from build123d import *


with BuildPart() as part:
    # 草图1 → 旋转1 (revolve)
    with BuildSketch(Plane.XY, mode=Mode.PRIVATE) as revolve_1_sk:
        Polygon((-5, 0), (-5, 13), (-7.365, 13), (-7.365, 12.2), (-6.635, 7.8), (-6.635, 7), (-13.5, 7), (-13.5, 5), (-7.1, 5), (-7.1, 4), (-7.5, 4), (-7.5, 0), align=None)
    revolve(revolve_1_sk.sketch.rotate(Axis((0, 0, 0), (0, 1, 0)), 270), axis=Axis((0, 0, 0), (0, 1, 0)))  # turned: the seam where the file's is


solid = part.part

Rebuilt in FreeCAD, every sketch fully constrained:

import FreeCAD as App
import Part
import Sketcher
from FreeCAD import Vector

doc = App.newDocument("Part")
body = doc.addObject("PartDesign::Body", "Body")

# Sketch on XY plane
sketch1 = body.newObject("Sketcher::SketchObject", "Sketch")
sketch1.AttachmentSupport = (doc.getObject("XY_Plane"), [""])
sketch1.MapMode = "FlatFace"
sketch1.addGeometry([
    Part.LineSegment(Vector(-5, 0, 0), Vector(-5, 13, 0)),  # 0
    Part.LineSegment(Vector(-5, 13, 0), Vector(-7.37, 13, 0)),  # 1
    Part.LineSegment(Vector(-7.37, 13, 0), Vector(-7.37, 12.2, 0)),  # 2
    Part.LineSegment(Vector(-7.37, 12.2, 0), Vector(-6.63, 7.8, 0)),  # 3
    Part.LineSegment(Vector(-6.63, 7.8, 0), Vector(-6.63, 7, 0)),  # 4
    Part.LineSegment(Vector(-6.63, 7, 0), Vector(-13.5, 7, 0)),  # 5
    Part.LineSegment(Vector(-13.5, 7, 0), Vector(-13.5, 5, 0)),  # 6
    Part.LineSegment(Vector(-13.5, 5, 0), Vector(-7.1, 5, 0)),  # 7
    Part.LineSegment(Vector(-7.1, 5, 0), Vector(-7.1, 4, 0)),  # 8
    Part.LineSegment(Vector(-7.1, 4, 0), Vector(-7.5, 4, 0)),  # 9
    Part.LineSegment(Vector(-7.5, 4, 0), Vector(-7.5, 0, 0)),  # 10
    Part.LineSegment(Vector(-7.5, 0, 0), Vector(-5, 0, 0)),  # 11
], False)
sketch1.addConstraint([
    Sketcher.Constraint("Coincident", 0, 2, 1, 1),
    Sketcher.Constraint("Coincident", 1, 2, 2, 1),
    Sketcher.Constraint("Coincident", 2, 2, 3, 1),
    Sketcher.Constraint("Coincident", 3, 2, 4, 1),
    Sketcher.Constraint("Coincident", 4, 2, 5, 1),
    Sketcher.Constraint("Coincident", 5, 2, 6, 1),
    Sketcher.Constraint("Coincident", 6, 2, 7, 1),
    Sketcher.Constraint("Coincident", 7, 2, 8, 1),
    Sketcher.Constraint("Coincident", 8, 2, 9, 1),
    Sketcher.Constraint("Coincident", 9, 2, 10, 1),
    Sketcher.Constraint("Coincident", 10, 2, 11, 1),
    Sketcher.Constraint("Coincident", 11, 2, 0, 1),
    Sketcher.Constraint("Vertical", 0),
    Sketcher.Constraint("Horizontal", 1),
    Sketcher.Constraint("Vertical", 2),
    Sketcher.Constraint("Vertical", 4),
    Sketcher.Constraint("Horizontal", 5),
    Sketcher.Constraint("Vertical", 6),
    Sketcher.Constraint("Horizontal", 7),
    Sketcher.Constraint("Vertical", 8),
    Sketcher.Constraint("Horizontal", 9),
    Sketcher.Constraint("Vertical", 10),
    Sketcher.Constraint("Horizontal", 11),
    Sketcher.Constraint("PointOnObject", 10, 2, -1),
    Sketcher.Constraint("Equal", 2, 4),
    Sketcher.Constraint("DistanceY", 0, 1, 0, 2, 13.0),
    Sketcher.Constraint("DistanceY", 6, 2, 6, 1, 2.0),
    Sketcher.Constraint("DistanceY", 8, 2, 8, 1, 1.0),
    Sketcher.Constraint("DistanceY", 10, 2, 10, 1, 4.0),
    Sketcher.Constraint("DistanceX", 7, 1, 7, 2, 6.4),
    Sketcher.Constraint("DistanceX", 9, 2, 9, 1, 0.4),
    Sketcher.Constraint("DistanceX", 11, 1, 11, 2, 2.5),
    Sketcher.Constraint("DistanceY", 2, 2, 2, 1, 0.8),
    Sketcher.Constraint("DistanceX", 0, 2, -1, 1, 5.0),
    Sketcher.Constraint("DistanceX", 1, 2, 1, 1, 2.365),
    Sketcher.Constraint("DistanceX", 5, 2, 5, 1, 6.865),
])
revolution = body.newObject("PartDesign::Revolution", "Revolution")
revolution.Profile = sketch1
revolution.ReferenceAxis = (sketch1, ["V_Axis"])
revolution.Angle = 360

doc.recompute()
